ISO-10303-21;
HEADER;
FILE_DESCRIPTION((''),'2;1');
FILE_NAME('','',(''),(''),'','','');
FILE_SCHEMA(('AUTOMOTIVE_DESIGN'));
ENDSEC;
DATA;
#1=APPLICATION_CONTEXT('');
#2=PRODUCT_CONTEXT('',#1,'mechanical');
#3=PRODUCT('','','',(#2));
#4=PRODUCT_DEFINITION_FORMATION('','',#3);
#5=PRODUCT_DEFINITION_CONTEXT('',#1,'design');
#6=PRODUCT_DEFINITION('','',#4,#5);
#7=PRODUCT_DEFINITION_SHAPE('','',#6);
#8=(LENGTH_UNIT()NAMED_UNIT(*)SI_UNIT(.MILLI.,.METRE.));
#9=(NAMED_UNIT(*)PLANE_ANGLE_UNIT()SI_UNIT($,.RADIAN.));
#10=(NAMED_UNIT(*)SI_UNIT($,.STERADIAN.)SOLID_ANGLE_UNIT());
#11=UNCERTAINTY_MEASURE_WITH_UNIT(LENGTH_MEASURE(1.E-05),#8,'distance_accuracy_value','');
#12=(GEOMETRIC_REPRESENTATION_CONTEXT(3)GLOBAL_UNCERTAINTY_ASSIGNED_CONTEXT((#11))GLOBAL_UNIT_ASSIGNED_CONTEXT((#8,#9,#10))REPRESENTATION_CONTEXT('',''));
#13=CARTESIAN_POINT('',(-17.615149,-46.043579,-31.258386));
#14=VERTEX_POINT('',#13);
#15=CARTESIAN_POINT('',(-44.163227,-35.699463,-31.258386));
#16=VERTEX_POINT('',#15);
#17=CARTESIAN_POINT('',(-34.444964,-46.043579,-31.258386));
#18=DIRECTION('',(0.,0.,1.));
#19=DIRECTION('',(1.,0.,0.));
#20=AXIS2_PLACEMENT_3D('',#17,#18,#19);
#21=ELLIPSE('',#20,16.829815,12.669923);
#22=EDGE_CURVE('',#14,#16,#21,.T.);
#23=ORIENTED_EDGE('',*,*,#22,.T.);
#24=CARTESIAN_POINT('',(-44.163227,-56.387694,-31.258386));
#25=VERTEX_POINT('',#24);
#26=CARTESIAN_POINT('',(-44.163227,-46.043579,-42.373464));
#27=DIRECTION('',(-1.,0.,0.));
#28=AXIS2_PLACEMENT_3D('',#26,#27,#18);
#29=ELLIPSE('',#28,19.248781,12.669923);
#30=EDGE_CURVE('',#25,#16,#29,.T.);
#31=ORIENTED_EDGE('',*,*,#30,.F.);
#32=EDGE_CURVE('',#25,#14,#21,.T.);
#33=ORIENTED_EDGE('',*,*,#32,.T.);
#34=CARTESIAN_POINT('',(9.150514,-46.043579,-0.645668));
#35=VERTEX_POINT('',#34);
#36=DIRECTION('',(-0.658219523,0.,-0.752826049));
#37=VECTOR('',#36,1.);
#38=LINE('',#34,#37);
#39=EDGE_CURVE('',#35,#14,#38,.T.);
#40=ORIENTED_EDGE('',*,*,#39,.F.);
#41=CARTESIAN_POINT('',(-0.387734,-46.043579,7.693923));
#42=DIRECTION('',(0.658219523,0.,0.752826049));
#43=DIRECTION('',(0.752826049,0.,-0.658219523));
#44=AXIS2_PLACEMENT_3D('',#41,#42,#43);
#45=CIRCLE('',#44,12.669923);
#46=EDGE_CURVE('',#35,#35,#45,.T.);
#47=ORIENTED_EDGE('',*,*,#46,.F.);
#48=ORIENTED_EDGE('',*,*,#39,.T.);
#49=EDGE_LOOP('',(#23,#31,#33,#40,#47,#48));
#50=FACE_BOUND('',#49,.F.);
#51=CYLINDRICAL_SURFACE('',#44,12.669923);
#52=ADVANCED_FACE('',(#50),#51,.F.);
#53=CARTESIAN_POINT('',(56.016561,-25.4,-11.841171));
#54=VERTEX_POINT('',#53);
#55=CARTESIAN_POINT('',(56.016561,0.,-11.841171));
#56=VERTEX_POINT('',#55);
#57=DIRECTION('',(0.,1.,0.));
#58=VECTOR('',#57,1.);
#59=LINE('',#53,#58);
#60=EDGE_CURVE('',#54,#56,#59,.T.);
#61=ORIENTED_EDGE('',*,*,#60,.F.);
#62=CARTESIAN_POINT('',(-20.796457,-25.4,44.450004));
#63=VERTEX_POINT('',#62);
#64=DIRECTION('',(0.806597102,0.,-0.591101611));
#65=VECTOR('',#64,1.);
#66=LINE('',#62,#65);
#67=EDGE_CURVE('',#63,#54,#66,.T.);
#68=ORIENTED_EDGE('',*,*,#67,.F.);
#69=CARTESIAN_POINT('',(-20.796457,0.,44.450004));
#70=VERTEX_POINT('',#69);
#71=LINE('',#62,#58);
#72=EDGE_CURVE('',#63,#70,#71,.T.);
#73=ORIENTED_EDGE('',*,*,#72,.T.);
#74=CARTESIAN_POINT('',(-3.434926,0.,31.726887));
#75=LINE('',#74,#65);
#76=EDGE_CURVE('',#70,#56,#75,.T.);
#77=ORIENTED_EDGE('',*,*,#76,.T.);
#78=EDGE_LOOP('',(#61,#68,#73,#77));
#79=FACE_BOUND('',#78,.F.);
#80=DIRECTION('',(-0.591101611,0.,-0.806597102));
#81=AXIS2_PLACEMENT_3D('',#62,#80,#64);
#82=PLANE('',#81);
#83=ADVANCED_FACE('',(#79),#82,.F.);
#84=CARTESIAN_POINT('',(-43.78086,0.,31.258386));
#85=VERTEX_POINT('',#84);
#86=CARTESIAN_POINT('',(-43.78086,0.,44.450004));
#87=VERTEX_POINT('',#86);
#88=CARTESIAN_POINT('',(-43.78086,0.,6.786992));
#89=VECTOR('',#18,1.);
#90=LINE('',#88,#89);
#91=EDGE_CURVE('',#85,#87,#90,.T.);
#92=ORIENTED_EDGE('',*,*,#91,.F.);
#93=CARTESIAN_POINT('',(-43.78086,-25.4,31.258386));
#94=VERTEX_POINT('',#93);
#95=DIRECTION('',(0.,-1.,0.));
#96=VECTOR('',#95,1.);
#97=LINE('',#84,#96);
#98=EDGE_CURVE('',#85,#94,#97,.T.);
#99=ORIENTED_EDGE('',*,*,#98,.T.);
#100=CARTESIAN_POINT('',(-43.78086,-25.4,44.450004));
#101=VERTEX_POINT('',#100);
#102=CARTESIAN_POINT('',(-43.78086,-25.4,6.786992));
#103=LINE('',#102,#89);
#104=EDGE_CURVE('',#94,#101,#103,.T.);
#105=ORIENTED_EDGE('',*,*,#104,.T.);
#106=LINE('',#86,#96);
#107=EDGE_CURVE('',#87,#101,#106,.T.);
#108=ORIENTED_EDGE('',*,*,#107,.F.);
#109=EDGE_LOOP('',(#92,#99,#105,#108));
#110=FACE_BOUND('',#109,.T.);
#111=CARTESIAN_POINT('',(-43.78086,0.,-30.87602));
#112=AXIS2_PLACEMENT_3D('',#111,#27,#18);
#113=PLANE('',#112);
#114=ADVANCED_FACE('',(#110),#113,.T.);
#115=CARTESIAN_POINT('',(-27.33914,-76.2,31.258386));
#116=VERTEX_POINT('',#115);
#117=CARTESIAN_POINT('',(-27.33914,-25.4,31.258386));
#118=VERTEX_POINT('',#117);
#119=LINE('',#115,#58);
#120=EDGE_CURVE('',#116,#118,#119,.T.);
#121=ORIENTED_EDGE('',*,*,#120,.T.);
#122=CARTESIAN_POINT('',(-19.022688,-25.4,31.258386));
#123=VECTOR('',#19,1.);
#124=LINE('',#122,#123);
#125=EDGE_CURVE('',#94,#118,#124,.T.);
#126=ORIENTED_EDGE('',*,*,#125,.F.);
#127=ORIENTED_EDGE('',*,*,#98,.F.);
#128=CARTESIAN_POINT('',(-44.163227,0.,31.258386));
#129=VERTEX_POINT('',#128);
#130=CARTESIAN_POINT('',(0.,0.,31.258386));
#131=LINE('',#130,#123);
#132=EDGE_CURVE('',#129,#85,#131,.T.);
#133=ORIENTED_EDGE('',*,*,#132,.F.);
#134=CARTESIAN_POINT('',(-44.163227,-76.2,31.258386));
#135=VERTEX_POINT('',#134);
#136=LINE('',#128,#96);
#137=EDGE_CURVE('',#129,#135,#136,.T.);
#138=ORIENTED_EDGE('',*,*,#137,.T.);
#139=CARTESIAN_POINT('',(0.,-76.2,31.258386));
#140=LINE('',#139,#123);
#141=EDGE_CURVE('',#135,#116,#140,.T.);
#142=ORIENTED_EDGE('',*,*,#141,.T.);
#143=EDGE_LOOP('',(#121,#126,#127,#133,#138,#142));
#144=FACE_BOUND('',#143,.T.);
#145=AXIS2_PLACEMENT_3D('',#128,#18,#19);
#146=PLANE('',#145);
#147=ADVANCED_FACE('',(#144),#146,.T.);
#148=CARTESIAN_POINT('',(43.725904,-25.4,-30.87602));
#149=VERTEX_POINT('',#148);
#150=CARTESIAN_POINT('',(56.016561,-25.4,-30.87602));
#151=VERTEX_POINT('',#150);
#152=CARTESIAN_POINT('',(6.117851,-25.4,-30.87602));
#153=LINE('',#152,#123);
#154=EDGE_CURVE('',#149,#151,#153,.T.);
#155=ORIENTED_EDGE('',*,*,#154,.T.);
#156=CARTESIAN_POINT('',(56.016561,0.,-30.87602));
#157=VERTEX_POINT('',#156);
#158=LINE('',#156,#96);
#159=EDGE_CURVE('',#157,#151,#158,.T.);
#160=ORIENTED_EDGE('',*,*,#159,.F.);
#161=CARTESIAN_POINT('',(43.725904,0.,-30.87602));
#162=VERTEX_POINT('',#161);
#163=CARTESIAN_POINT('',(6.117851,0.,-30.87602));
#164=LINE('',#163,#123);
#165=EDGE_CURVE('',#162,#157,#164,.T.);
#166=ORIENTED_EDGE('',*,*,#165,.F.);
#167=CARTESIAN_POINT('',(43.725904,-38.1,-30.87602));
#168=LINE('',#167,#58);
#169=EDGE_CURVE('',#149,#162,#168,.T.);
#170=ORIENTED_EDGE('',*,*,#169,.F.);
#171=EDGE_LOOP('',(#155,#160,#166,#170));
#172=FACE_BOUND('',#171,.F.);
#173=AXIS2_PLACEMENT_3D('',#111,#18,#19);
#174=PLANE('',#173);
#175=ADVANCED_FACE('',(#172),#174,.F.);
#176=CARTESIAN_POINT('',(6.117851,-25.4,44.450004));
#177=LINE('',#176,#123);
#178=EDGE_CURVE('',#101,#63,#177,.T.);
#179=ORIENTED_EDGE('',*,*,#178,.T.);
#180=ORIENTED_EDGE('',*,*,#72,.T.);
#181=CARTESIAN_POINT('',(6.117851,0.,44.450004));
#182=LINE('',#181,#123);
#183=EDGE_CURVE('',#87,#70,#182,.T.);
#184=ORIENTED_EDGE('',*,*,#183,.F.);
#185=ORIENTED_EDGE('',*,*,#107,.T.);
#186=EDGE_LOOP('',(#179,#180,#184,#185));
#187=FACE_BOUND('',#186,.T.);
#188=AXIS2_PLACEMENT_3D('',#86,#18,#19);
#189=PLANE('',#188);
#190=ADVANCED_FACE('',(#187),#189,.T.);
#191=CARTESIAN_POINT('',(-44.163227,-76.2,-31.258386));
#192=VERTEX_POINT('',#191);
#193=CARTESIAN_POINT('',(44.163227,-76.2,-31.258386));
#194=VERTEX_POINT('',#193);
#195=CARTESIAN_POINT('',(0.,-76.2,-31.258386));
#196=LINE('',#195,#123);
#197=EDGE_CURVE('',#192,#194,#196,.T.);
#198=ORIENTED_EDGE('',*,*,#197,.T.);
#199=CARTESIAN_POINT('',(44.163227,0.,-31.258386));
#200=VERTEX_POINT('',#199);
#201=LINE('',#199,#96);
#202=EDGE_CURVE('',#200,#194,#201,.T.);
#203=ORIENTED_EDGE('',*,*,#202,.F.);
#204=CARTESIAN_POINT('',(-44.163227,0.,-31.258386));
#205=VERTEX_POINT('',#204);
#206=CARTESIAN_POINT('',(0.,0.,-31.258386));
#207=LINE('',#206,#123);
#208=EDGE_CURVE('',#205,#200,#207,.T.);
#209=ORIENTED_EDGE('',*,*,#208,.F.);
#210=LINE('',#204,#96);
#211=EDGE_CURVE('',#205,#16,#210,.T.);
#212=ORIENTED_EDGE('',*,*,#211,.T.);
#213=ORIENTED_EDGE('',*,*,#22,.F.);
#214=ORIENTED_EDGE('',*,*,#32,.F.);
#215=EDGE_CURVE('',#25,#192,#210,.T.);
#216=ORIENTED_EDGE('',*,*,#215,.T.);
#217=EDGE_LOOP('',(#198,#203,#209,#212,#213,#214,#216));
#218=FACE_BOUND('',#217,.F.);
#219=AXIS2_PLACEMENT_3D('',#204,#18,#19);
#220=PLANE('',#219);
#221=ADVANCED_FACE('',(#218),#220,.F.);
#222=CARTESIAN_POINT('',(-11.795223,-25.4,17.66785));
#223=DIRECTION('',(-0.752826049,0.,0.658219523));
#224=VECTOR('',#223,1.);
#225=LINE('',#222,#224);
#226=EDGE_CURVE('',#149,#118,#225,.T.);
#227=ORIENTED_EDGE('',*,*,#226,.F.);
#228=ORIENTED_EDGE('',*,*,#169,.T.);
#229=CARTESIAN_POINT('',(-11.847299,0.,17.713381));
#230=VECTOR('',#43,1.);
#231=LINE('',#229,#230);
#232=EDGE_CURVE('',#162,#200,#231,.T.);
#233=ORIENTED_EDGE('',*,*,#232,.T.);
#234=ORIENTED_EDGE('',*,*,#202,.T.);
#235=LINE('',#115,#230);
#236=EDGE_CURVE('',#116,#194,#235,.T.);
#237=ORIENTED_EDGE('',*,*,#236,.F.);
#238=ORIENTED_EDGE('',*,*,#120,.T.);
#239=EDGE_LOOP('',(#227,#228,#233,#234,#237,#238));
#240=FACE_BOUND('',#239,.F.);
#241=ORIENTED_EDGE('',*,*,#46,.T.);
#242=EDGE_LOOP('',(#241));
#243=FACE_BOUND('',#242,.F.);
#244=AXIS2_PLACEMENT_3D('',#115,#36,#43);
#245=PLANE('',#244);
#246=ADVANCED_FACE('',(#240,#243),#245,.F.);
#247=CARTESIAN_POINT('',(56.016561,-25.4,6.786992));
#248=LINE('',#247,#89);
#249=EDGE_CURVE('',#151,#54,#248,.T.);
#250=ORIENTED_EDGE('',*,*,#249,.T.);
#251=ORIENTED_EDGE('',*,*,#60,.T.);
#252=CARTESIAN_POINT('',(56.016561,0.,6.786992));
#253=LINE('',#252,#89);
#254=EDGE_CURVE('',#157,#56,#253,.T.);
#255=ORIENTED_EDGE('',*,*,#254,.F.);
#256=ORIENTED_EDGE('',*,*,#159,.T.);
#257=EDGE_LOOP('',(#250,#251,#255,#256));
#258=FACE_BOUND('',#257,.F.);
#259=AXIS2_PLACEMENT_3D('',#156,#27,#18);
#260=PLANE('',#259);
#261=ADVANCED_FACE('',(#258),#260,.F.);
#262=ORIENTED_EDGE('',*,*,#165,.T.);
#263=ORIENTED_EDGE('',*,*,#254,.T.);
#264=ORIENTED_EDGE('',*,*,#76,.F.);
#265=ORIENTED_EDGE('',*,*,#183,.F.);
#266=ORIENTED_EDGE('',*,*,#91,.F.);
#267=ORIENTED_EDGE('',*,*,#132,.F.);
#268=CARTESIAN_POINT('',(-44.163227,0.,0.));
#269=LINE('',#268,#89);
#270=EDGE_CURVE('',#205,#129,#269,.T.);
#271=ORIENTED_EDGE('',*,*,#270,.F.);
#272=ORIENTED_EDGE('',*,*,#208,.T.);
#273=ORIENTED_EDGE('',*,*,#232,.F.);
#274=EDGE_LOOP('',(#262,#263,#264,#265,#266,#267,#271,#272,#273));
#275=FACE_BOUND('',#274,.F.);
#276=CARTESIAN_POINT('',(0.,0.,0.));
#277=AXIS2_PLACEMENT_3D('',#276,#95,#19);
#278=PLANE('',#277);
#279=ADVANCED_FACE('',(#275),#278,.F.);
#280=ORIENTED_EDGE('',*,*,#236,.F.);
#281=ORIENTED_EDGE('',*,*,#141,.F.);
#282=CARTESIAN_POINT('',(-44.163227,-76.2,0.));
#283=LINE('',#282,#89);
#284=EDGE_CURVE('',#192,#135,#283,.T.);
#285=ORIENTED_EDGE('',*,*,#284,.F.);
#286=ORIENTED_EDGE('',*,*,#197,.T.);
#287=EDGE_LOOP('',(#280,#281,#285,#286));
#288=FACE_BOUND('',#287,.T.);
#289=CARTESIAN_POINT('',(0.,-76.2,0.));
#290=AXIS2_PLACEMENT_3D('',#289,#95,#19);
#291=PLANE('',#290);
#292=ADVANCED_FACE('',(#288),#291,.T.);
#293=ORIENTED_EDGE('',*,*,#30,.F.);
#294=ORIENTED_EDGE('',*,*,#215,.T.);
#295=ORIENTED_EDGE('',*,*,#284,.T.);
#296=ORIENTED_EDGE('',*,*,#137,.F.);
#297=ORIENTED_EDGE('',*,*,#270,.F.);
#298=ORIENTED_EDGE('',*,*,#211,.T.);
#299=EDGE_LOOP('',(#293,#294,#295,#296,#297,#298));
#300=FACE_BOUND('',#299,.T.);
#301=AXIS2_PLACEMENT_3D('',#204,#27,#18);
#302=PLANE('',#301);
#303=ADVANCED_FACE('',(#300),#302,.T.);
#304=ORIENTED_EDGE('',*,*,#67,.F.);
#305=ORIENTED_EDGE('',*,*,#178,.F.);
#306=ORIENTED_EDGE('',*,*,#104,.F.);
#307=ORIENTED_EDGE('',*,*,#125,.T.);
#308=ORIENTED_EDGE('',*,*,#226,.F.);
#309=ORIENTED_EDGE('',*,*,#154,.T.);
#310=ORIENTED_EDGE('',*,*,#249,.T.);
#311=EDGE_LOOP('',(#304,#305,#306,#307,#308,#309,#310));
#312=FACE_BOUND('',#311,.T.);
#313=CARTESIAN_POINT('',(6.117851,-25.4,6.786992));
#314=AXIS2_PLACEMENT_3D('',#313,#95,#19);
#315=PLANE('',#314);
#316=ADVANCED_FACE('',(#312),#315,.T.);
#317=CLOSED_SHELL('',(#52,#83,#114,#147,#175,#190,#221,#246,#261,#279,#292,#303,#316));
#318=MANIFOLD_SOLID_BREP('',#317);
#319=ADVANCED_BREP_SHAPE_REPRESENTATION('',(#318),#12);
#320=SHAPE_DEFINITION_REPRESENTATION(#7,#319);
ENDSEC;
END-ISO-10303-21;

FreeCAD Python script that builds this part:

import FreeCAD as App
import Part
import Sketcher

V = App.Vector
Q = App.Units.Quantity


def add_polygon(sketch, points):
    """Adds a closed chain of lines whose ends are joined by coincident constraints."""
    first, n = sketch.GeometryCount, len(points)
    for a, b in zip(points, points[1:] + points[:1]):
        sketch.addGeometry(Part.LineSegment(App.Vector(*a, 0), App.Vector(*b, 0)), False)
    for i in range(n):
        sketch.addConstraint(Sketcher.Constraint("Coincident", first + i, 2, first + (i + 1) % n, 1))

doc = App.newDocument("Part")
body = doc.addObject("PartDesign::Body", "Body")

sketch1 = body.newObject("Sketcher::SketchObject", "Sketch")
sketch1.AttachmentSupport = (doc.getObject("XZ_Plane"), [""])
sketch1.MapMode = "FlatFace"
add_polygon(sketch1, [(-44, 31), (-44, -31), (44, -31), (44, 31)])
sketch1.addConstraint(Sketcher.Constraint("Vertical", 0))
sketch1.addConstraint(Sketcher.Constraint("Horizontal", 1))
sketch1.addConstraint(Sketcher.Constraint("Vertical", 2))
sketch1.addConstraint(Sketcher.Constraint("Horizontal", 3))
sketch1.addConstraint(Sketcher.Constraint("Symmetric", 0, 2, 2, 2, -1, 1))
sketch1.addConstraint(Sketcher.Constraint("DistanceY", 0, 2, 0, 1, Q("62.516771 mm")))
sketch1.addConstraint(Sketcher.Constraint("DistanceX", 1, 1, 1, 2, Q("88.326454 mm")))
pad1 = body.newObject("PartDesign::Pad", "Pad")
pad1.Profile = sketch1
pad1.Length = Q("3 in")

sketch2 = body.newObject("Sketcher::SketchObject", "Sketch001")
sketch2.AttachmentSupport = (doc.getObject("XZ_Plane"), [""])
sketch2.MapMode = "FlatFace"
sketch2.AttachmentOffset = App.Placement(V(0, 0, 3 * 25.4), App.Rotation())
add_polygon(sketch2, [(44, 31), (-27, 31), (44, -31)])
sketch2.addConstraint(Sketcher.Constraint("Horizontal", 0))
sketch2.addConstraint(Sketcher.Constraint("Vertical", 2))
sketch2.addConstraint(Sketcher.Constraint("DistanceY", 2, 1, 2, 2, Q("62.516771 mm")))
sketch2.addConstraint(Sketcher.Constraint("DistanceX", 0, 2, 0, 1, Q("71.502367 mm")))
sketch2.addConstraint(Sketcher.Constraint("DistanceX", 0, 2, -1, 1, Q("27.33914 mm")))
sketch2.addConstraint(Sketcher.Constraint("DistanceY", -1, 1, 0, 2, Q("31.258386 mm")))
pocket1 = body.newObject("PartDesign::Pocket", "Pocket")
pocket1.Profile = sketch2
pocket1.Type = "ThroughAll"

sketch3 = body.newObject("Sketcher::SketchObject", "Sketch002")
sketch3.Placement = App.Placement(V(3.644543, 0, 4.168376), App.Rotation(V(0.752826049, 0, -0.658219523), V(0, 1.000000001, 0), V(0.658219523, 0, 0.752826049), "ZXY"))
sketch3.addGeometry(Part.Circle(V(-5, -46, 0), V(0, 0, 1), 13), False)
sketch3.addConstraint(Sketcher.Constraint("Diameter", 0, Q("25.339846 mm")))
sketch3.addConstraint(Sketcher.Constraint("DistanceY", 0, 3, -1, 1, Q("46.043579 mm")))
sketch3.addConstraint(Sketcher.Constraint("DistanceX", 0, 3, -1, 1, Q("5.356187 mm")))
pocket2 = body.newObject("PartDesign::Pocket", "Pocket001")
pocket2.Profile = sketch3
pocket2.Type = "ThroughAll"

sketch4 = body.newObject("Sketcher::SketchObject", "Sketch003")
sketch4.AttachmentSupport = (doc.getObject("XZ_Plane"), [""])
sketch4.MapMode = "FlatFace"
add_polygon(sketch4, [(-44, 44), (-44, -31), (56, -31), (56, 44)])
sketch4.addConstraint(Sketcher.Constraint("Vertical", 0))
sketch4.addConstraint(Sketcher.Constraint("Horizontal", 1))
sketch4.addConstraint(Sketcher.Constraint("Vertical", 2))
sketch4.addConstraint(Sketcher.Constraint("Horizontal", 3))
sketch4.addConstraint(Sketcher.Constraint("DistanceY", -1, 1, 2, 2, Q("1.7500001 in")))
sketch4.addConstraint(Sketcher.Constraint("DistanceX", 1, 1, 1, 2, Q("99.79742 mm")))
sketch4.addConstraint(Sketcher.Constraint("DistanceY", 0, 2, 0, 1, Q("75.326024 mm")))
sketch4.addConstraint(Sketcher.Constraint("DistanceX", 0, 2, -1, 1, Q("43.78086 mm")))
pad2 = body.newObject("PartDesign::Pad", "Pad001")
pad2.Profile = sketch4
pad2.Length = Q("1 in")

sketch5 = body.newObject("Sketcher::SketchObject", "Sketch004")
sketch5.AttachmentSupport = (doc.getObject("XZ_Plane"), [""])
sketch5.MapMode = "FlatFace"
sketch5.AttachmentOffset = App.Placement(V(0, 0, 1 * 25.4), App.Rotation())
add_polygon(sketch5, [(56, 44), (-21, 44), (56, -12)])
sketch5.addConstraint(Sketcher.Constraint("Horizontal", 0))
sketch5.addConstraint(Sketcher.Constraint("Vertical", 2))
sketch5.addConstraint(Sketcher.Constraint("DistanceY", -1, 1, 0, 2, Q("1.7500001 in")))
sketch5.addConstraint(Sketcher.Constraint("Distance", 1, Q("95.230962 mm")))
sketch5.addConstraint(Sketcher.Constraint("DistanceX", 0, 2, 0, 1, Q("76.813018 mm")))
sketch5.addConstraint(Sketcher.Constraint("DistanceX", -1, 1, 1, 2, Q("56.016561 mm")))
pocket3 = body.newObject("PartDesign::Pocket", "Pocket002")
pocket3.Profile = sketch5
pocket3.Type = "ThroughAll"

doc.recompute()
